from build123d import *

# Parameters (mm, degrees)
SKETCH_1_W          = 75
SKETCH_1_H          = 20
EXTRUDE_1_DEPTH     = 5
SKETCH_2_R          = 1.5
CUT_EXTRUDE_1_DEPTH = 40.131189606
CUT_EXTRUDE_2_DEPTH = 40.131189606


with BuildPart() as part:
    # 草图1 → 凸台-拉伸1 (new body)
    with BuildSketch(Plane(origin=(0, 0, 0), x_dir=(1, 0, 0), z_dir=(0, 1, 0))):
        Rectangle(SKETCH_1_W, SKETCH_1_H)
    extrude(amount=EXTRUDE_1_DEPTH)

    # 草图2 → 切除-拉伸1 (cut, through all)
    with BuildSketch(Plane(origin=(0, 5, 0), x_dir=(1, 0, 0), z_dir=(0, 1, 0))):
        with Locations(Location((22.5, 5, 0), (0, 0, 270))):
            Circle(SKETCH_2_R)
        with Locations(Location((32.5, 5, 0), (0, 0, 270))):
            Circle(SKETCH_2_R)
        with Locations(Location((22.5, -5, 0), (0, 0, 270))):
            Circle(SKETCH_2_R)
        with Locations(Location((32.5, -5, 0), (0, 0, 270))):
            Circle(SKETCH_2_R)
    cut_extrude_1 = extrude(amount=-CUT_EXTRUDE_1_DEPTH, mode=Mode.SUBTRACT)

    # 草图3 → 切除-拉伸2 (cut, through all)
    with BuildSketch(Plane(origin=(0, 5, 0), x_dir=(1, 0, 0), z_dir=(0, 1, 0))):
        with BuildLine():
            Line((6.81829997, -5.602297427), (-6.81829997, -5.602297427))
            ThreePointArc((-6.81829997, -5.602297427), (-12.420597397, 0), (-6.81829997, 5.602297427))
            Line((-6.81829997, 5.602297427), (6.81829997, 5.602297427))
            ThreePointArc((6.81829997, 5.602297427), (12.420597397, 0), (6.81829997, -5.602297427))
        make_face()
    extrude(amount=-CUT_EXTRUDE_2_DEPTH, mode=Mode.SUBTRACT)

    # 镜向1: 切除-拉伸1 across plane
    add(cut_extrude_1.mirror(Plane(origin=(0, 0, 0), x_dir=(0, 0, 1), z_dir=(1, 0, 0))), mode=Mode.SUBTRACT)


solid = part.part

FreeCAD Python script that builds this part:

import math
import FreeCAD as App
import Part
import Sketcher


def add_polygon(sketch, points):
    """Adds a closed chain of lines whose ends are joined by coincident constraints."""
    first, n = sketch.GeometryCount, len(points)
    for a, b in zip(points, points[1:] + points[:1]):
        sketch.addGeometry(Part.LineSegment(App.Vector(*a, 0), App.Vector(*b, 0)), False)
    for i in range(n):
        sketch.addConstraint(Sketcher.Constraint("Coincident", first + i, 2, first + (i + 1) % n, 1))

doc = App.newDocument("Part")
body = doc.addObject("PartDesign::Body", "Body")

sketch1 = body.newObject("Sketcher::SketchObject", "Sketch")
sketch1.AttachmentSupport = (doc.getObject("XZ_Plane"), [""])
sketch1.MapMode = "FlatFace"
add_polygon(sketch1, [(-37.5, -10), (-37.5, 10), (37.5, 10), (37.5, -10)])
sketch1.addConstraint(Sketcher.Constraint("Vertical", 0))
sketch1.addConstraint(Sketcher.Constraint("Horizontal", 1))
sketch1.addConstraint(Sketcher.Constraint("Vertical", 2))
sketch1.addConstraint(Sketcher.Constraint("Horizontal", 3))
sketch1.addConstraint(Sketcher.Constraint("Symmetric", 0, 2, 2, 2, -1, 1))
sketch1.addConstraint(Sketcher.Constraint("DistanceX", 1, 1, 1, 2, 75.0))
sketch1.addConstraint(Sketcher.Constraint("DistanceY", 0, 1, 0, 2, 20.0))
pad1 = body.newObject("PartDesign::Pad", "Pad")
pad1.Profile = sketch1
pad1.Length = 5
pad1.Reversed = True

sketch2 = body.newObject("Sketcher::SketchObject", "Sketch001")
sketch2.AttachmentSupport = (doc.getObject("XZ_Plane"), [""])
sketch2.MapMode = "FlatFace"
sketch2.AttachmentOffset = App.Placement(App.Vector(0, 0, -5), App.Rotation())
sketch2.addGeometry(Part.Circle(App.Vector(22.5, -5, 0), App.Vector(0, 0, 1), 1.5), False)
sketch2.addGeometry(Part.Circle(App.Vector(32.5, -5, 0), App.Vector(0, 0, 1), 1.5), False)
sketch2.addGeometry(Part.Circle(App.Vector(22.5, 5, 0), App.Vector(0, 0, 1), 1.5), False)
sketch2.addGeometry(Part.Circle(App.Vector(32.5, 5, 0), App.Vector(0, 0, 1), 1.5), False)
sketch2.addConstraint(Sketcher.Constraint("Equal", 0, 1))
sketch2.addConstraint(Sketcher.Constraint("Equal", 1, 2))
sketch2.addConstraint(Sketcher.Constraint("Equal", 2, 3))
sketch2.addConstraint(Sketcher.Constraint("Symmetric", 0, 3, 2, 3, -1))
sketch2.addConstraint(Sketcher.Constraint("Symmetric", 1, 3, 3, 3, -1))
sketch2.addConstraint(Sketcher.Constraint("Horizontal", 0, 3, 1, 3))
sketch2.addConstraint(Sketcher.Constraint("Diameter", 0, 3.0))
sketch2.addConstraint(Sketcher.Constraint("DistanceY", 0, 3, -1, 1, 5.0))
sketch2.addConstraint(Sketcher.Constraint("DistanceX", 0, 3, 1, 3, 10.0))
sketch2.addConstraint(Sketcher.Constraint("DistanceX", -1, 1, 0, 3, 22.5))
pocket1 = body.newObject("PartDesign::Pocket", "Pocket")
pocket1.Profile = sketch2
pocket1.Type = "ThroughAll"
pocket1.Reversed = True

sketch3 = body.newObject("Sketcher::SketchObject", "Sketch002")
sketch3.AttachmentSupport = (doc.getObject("XZ_Plane"), [""])
sketch3.MapMode = "FlatFace"
sketch3.AttachmentOffset = App.Placement(App.Vector(0, 0, -5), App.Rotation())
sketch3.addGeometry(Part.LineSegment(App.Vector(-6.8183, 5.602297, 0), App.Vector(6.8183, 5.602297, 0)), False)
sketch3.addGeometry(Part.ArcOfCircle(Part.Circle(App.Vector(6.8183, 0, 0), App.Vector(0, 0, 1), 5.602297), math.radians(-90), math.radians(90)), False)
sketch3.addGeometry(Part.LineSegment(App.Vector(6.8183, -5.602297, 0), App.Vector(-6.8183, -5.602297, 0)), False)
sketch3.addGeometry(Part.ArcOfCircle(Part.Circle(App.Vector(-6.8183, 0, 0), App.Vector(0, 0, 1), 5.602297), math.radians(90), math.radians(270)), False)
sketch3.addConstraint(Sketcher.Constraint("Tangent", 0, 2, 1, 2))
sketch3.addConstraint(Sketcher.Constraint("Tangent", 1, 1, 2, 1))
sketch3.addConstraint(Sketcher.Constraint("Tangent", 2, 2, 3, 2))
sketch3.addConstraint(Sketcher.Constraint("Tangent", 3, 1, 0, 1))
sketch3.addConstraint(Sketcher.Constraint("Horizontal", 0))
sketch3.addConstraint(Sketcher.Constraint("Horizontal", 2))
sketch3.addConstraint(Sketcher.Constraint("Symmetric", 1, 3, 3, 3, -1, 1))
sketch3.addConstraint(Sketcher.Constraint("DistanceX", 0, 1, 0, 2, 13.6366))
sketch3.addConstraint(Sketcher.Constraint("Radius", 1, 5.602297))
pocket2 = body.newObject("PartDesign::Pocket", "Pocket001")
pocket2.Profile = sketch3
pocket2.Type = "ThroughAll"
pocket2.Reversed = True
doc.recompute()

mirrored = body.newObject("PartDesign::Mirrored", "Mirrored")
mirrored.Originals = [pocket1]
mirrored.MirrorPlane = (doc.getObject("YZ_Plane"), [""])
body.Tip = mirrored

doc.recompute()
